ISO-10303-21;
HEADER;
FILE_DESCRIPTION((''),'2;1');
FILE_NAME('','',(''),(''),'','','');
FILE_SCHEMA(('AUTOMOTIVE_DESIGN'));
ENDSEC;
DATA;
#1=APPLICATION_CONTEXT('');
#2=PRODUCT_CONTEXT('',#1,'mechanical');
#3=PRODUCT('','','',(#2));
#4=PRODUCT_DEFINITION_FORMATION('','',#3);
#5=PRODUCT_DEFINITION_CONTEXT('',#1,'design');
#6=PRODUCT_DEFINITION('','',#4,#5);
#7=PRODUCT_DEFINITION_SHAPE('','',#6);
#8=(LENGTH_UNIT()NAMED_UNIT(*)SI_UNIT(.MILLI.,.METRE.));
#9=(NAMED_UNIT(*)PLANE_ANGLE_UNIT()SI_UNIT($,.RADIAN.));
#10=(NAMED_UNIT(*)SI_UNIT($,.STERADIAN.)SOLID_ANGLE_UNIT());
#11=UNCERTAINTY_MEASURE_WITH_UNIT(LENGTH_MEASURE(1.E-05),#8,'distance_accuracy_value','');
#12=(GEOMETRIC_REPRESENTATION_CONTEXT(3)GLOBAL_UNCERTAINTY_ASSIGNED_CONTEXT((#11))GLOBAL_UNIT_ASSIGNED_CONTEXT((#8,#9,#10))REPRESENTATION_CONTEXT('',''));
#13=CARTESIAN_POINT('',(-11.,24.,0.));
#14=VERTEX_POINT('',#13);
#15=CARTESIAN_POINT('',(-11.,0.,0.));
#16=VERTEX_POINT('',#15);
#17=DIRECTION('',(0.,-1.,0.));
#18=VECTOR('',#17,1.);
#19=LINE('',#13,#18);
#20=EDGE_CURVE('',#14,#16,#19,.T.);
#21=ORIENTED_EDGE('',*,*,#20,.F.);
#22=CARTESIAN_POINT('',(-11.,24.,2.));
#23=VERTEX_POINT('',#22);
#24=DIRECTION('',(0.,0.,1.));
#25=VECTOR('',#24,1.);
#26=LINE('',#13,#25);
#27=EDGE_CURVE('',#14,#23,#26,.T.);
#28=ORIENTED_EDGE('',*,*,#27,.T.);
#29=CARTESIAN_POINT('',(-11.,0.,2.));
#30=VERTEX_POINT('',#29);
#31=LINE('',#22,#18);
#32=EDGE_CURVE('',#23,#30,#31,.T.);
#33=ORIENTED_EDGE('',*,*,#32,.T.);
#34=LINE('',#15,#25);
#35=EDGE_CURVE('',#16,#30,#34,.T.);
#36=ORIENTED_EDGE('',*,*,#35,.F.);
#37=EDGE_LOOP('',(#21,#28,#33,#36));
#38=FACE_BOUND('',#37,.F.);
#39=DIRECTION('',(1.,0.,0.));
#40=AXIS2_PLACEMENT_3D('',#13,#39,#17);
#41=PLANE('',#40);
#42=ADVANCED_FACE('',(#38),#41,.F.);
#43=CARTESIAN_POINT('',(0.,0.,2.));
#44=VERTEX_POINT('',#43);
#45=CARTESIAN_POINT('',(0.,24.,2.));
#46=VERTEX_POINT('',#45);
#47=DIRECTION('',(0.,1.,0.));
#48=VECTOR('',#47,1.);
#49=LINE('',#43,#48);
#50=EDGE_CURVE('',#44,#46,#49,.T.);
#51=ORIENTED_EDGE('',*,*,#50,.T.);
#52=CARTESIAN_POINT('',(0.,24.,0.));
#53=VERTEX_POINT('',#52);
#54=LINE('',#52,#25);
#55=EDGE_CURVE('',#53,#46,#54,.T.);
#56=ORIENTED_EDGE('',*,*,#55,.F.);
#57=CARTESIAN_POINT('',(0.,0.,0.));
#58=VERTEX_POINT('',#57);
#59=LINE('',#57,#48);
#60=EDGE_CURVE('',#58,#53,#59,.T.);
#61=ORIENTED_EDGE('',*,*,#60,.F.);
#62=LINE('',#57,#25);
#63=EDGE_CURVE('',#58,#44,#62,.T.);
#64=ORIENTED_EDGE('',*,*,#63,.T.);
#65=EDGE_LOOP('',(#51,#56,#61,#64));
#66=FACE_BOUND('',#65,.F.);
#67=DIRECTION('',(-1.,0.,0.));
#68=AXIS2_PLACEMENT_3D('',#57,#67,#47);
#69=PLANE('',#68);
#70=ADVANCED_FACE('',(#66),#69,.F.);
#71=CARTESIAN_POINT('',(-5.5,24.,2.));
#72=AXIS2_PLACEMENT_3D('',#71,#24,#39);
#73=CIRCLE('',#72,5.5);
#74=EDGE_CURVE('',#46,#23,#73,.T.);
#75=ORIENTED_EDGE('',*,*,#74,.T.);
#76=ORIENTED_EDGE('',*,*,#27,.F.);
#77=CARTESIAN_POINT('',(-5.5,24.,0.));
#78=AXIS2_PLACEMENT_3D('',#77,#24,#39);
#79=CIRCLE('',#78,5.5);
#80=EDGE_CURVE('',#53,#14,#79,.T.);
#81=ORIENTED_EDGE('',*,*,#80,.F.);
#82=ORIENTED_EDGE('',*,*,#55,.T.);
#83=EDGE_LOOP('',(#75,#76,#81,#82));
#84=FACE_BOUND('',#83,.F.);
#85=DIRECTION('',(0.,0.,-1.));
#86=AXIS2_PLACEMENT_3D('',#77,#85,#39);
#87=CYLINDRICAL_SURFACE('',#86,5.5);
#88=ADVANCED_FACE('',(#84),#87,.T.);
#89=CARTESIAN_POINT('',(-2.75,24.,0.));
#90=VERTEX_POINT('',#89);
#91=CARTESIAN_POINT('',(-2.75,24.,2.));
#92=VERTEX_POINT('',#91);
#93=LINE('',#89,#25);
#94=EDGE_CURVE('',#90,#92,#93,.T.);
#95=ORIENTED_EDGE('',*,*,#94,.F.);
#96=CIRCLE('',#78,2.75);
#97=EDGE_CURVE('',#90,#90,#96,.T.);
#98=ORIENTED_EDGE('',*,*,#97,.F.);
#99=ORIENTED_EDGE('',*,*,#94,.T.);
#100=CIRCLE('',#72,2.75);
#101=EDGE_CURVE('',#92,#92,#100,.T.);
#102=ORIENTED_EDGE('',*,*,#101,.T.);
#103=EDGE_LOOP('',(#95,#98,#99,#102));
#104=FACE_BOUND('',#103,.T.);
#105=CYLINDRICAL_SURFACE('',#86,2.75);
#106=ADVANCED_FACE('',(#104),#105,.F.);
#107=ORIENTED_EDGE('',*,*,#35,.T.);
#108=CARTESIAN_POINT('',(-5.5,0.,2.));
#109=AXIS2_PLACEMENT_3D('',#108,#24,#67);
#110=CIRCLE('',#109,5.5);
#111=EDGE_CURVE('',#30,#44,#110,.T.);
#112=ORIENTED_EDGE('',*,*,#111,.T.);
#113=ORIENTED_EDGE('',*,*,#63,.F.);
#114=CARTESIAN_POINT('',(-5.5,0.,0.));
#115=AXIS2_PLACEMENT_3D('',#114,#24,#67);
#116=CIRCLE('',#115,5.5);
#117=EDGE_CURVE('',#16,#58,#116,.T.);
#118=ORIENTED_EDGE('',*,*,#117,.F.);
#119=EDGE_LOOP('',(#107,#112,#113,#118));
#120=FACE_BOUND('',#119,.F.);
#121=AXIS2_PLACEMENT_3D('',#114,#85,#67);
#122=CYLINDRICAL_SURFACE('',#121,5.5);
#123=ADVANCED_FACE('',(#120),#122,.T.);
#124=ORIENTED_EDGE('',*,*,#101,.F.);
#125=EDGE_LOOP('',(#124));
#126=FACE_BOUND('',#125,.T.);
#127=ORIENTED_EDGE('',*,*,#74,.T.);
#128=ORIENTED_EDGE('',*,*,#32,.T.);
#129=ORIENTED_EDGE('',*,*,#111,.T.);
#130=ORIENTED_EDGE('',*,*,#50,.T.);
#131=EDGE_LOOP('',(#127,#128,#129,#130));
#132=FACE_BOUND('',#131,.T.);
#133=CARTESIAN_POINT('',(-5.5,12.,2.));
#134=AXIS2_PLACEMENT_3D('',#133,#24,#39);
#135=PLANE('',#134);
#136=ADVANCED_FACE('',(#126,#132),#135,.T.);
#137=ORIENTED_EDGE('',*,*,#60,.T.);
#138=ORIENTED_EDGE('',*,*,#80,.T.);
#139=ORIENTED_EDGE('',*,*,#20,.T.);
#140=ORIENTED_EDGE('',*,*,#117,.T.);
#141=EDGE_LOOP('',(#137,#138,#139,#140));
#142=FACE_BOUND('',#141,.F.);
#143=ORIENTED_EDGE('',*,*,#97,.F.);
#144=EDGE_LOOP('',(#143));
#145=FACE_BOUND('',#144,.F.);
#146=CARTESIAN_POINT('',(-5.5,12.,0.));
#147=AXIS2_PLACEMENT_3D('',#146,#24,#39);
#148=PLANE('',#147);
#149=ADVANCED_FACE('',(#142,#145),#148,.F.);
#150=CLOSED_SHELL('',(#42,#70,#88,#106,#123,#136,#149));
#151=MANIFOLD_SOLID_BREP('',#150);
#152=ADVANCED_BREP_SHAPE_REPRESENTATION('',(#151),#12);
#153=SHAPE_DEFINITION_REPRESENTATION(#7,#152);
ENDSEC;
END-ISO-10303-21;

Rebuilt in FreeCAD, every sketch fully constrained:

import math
import FreeCAD as App
import Part
import Sketcher
from FreeCAD import Vector

doc = App.newDocument("Part")
body = doc.addObject("PartDesign::Body", "Body")

sketch1 = body.newObject("Sketcher::SketchObject", "Sketch")
sketch1.AttachmentSupport = (doc.getObject("XY_Plane"), [""])
sketch1.MapMode = "FlatFace"
sketch1.addGeometry(Part.LineSegment(Vector(0, 0, 0), Vector(0, 24, 0)), False)
sketch1.addGeometry(Part.ArcOfCircle(Part.Circle(Vector(-5.5, 24, 0), Vector(0, 0, 1), 5.5), math.radians(0), math.radians(180)), False)
sketch1.addGeometry(Part.LineSegment(Vector(-11, 24, 0), Vector(-11, 0, 0)), False)
sketch1.addGeometry(Part.ArcOfCircle(Part.Circle(Vector(-5.5, 0, 0), Vector(0, 0, 1), 5.5), math.radians(180), math.radians(360)), False)
sketch1.addGeometry(Part.Circle(Vector(-5.5, 24, 0), Vector(0, 0, 1), 2.8), False)
sketch1.addConstraint(Sketcher.Constraint("Tangent", 0, 2, 1, 1))
sketch1.addConstraint(Sketcher.Constraint("Tangent", 1, 2, 2, 1))
sketch1.addConstraint(Sketcher.Constraint("Tangent", 2, 2, 3, 1))
sketch1.addConstraint(Sketcher.Constraint("Tangent", 3, 2, 0, 1))
sketch1.addConstraint(Sketcher.Constraint("Vertical", 0))
sketch1.addConstraint(Sketcher.Constraint("Vertical", 2))
sketch1.addConstraint(Sketcher.Constraint("Coincident", 3, 2, -1, 1))
sketch1.addConstraint(Sketcher.Constraint("Coincident", 4, 3, 1, 3))
sketch1.addConstraint(Sketcher.Constraint("Diameter", 4, 5.5))
sketch1.addConstraint(Sketcher.Constraint("Radius", 1, 5.5))
sketch1.addConstraint(Sketcher.Constraint("DistanceY", 0, 1, 0, 2, 24.0))
pad1 = body.newObject("PartDesign::Pad", "Pad")
pad1.Profile = sketch1
pad1.Length = 2

doc.recompute()
